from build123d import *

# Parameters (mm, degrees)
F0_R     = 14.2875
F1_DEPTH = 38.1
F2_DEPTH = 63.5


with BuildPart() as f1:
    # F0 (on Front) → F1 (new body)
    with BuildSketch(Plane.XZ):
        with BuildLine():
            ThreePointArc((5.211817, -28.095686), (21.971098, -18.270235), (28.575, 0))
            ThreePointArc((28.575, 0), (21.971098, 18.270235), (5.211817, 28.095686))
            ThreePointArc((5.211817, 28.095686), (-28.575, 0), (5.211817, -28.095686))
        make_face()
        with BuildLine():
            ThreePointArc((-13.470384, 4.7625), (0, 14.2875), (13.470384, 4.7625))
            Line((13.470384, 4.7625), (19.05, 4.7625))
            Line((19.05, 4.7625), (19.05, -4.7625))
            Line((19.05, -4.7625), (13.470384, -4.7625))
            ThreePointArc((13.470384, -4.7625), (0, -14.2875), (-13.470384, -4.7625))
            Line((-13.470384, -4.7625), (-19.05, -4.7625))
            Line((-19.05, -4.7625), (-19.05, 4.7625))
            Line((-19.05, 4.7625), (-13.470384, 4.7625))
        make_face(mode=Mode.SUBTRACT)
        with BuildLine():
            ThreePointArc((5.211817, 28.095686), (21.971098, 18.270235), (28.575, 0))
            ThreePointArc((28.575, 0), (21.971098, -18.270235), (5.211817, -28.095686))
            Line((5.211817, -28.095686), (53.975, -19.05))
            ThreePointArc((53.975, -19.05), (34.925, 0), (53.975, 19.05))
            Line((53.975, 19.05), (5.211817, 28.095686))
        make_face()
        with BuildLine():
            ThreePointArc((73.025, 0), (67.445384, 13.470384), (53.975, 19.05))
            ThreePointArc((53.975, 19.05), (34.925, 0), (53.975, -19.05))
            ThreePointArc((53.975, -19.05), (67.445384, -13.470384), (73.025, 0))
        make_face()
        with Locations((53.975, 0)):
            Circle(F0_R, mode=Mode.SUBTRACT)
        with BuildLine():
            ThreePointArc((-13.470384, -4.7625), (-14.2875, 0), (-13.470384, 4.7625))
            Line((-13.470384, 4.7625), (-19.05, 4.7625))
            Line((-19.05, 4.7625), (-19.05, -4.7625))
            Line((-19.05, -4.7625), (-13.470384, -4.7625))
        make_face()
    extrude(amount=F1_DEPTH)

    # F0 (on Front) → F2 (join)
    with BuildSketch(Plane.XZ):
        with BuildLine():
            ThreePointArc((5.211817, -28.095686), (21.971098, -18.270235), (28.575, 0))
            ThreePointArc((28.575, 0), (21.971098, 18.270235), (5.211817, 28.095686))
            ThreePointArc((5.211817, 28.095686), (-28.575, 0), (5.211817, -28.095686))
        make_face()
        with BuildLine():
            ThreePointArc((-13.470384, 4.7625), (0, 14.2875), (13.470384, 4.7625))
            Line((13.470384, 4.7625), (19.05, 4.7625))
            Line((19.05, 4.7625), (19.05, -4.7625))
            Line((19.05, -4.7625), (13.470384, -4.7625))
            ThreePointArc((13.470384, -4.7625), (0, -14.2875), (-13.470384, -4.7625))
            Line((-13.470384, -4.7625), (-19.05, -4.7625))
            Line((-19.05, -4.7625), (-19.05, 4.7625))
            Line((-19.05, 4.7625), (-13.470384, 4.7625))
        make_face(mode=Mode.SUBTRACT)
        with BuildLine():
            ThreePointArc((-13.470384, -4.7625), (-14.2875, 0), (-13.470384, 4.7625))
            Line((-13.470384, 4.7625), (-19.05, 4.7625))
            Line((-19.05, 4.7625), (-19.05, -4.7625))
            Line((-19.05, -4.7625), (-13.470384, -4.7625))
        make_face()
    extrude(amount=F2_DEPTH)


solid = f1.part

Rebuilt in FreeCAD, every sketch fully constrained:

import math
import FreeCAD as App
import Part
import Sketcher
from FreeCAD import Vector
Q = App.Units.Quantity

doc = App.newDocument("Part")
body = doc.addObject("PartDesign::Body", "Body")

# Sketch on XZ plane
sketch1 = body.newObject("Sketcher::SketchObject", "Sketch")
sketch1.AttachmentSupport = (doc.getObject("XZ_Plane"), [""])
sketch1.MapMode = "FlatFace"
sketch1.addGeometry(Part.ArcOfCircle(Part.Circle(Vector(0, 0, 0), Vector(0, 0, 1), 29), math.radians(79), math.radians(281)), False)
sketch1.addGeometry(Part.LineSegment(Vector(5, -28, 0), Vector(54, -19, 0)), False)
sketch1.addGeometry(Part.ArcOfCircle(Part.Circle(Vector(54, 0, 0), Vector(0, 0, 1), 19), math.radians(-90), math.radians(0)), False)
sketch1.addGeometry(Part.ArcOfCircle(Part.Circle(Vector(54, 0, 0), Vector(0, 0, 1), 19), math.radians(0), math.radians(90)), False)
sketch1.addGeometry(Part.LineSegment(Vector(54, 19, 0), Vector(5, 28, 0)), False)
sketch1.addGeometry(Part.ArcOfCircle(Part.Circle(Vector(0, 0, 0), Vector(0, 0, 1), 14), math.radians(19), math.radians(161)), False)
sketch1.addGeometry(Part.LineSegment(Vector(13, 5, 0), Vector(19, 5, 0)), False)
sketch1.addGeometry(Part.LineSegment(Vector(19, 5, 0), Vector(19, -5, 0)), False)
sketch1.addGeometry(Part.LineSegment(Vector(19, -5, 0), Vector(13, -5, 0)), False)
sketch1.addGeometry(Part.ArcOfCircle(Part.Circle(Vector(0, 0, 0), Vector(0, 0, 1), 14), math.radians(-161), math.radians(-19)), False)
sketch1.addGeometry(Part.ArcOfCircle(Part.Circle(Vector(0, 0, 0), Vector(0, 0, 1), 14), math.radians(161), math.radians(199)), False)
sketch1.addGeometry(Part.Circle(Vector(54, 0, 0), Vector(0, 0, 1), 14), False)
sketch1.addConstraint(Sketcher.Constraint("Tangent", 0, 2, 1, 1))
sketch1.addConstraint(Sketcher.Constraint("Coincident", 1, 2, 2, 1))
sketch1.addConstraint(Sketcher.Constraint("Tangent", 2, 2, 3, 1))
sketch1.addConstraint(Sketcher.Constraint("Coincident", 3, 2, 4, 1))
sketch1.addConstraint(Sketcher.Constraint("Tangent", 4, 2, 0, 1))
sketch1.addConstraint(Sketcher.Constraint("Coincident", 5, 1, 6, 1))
sketch1.addConstraint(Sketcher.Constraint("Coincident", 6, 2, 7, 1))
sketch1.addConstraint(Sketcher.Constraint("Coincident", 7, 2, 8, 1))
sketch1.addConstraint(Sketcher.Constraint("Coincident", 8, 2, 9, 2))
sketch1.addConstraint(Sketcher.Constraint("Tangent", 9, 1, 10, 2))
sketch1.addConstraint(Sketcher.Constraint("Tangent", 10, 1, 5, 2))
sketch1.addConstraint(Sketcher.Constraint("Horizontal", 6))
sketch1.addConstraint(Sketcher.Constraint("Vertical", 7))
sketch1.addConstraint(Sketcher.Constraint("Horizontal", 8))
sketch1.addConstraint(Sketcher.Constraint("Coincident", 0, 3, -1, 1))
sketch1.addConstraint(Sketcher.Constraint("Coincident", 5, 3, -1, 1))
sketch1.addConstraint(Sketcher.Constraint("Coincident", 9, 3, -1, 1))
sketch1.addConstraint(Sketcher.Constraint("Coincident", 11, 3, 2, 3))
sketch1.addConstraint(Sketcher.Constraint("Equal", 2, 3))
sketch1.addConstraint(Sketcher.Constraint("Equal", 9, 11))
sketch1.addConstraint(Sketcher.Constraint("Symmetric", 1, 2, 3, 2, -1))
sketch1.addConstraint(Sketcher.Constraint("PointOnObject", 2, 2, -1))
sketch1.addConstraint(Sketcher.Constraint("Horizontal", 8, 2, 9, 1))
sketch1.addConstraint(Sketcher.Constraint("Horizontal", 6, 2, 10, 1))
sketch1.addConstraint(Sketcher.Constraint("Vertical", 11, 3, 1, 2))
sketch1.addConstraint(Sketcher.Constraint("Vertical", 5, 1, 8, 2))
sketch1.addConstraint(Sketcher.Constraint("Radius", 2, Q("0.75 in")))
sketch1.addConstraint(Sketcher.Constraint("Diameter", 11, Q("1.125 in")))
sketch1.addConstraint(Sketcher.Constraint("Radius", 0, Q("1.125 in")))
sketch1.addConstraint(Sketcher.Constraint("DistanceY", 7, 2, 7, 1, Q("0.375 in")))
sketch1.addConstraint(Sketcher.Constraint("DistanceX", -1, 1, 6, 2, Q("0.75 in")))
sketch1.addConstraint(Sketcher.Constraint("DistanceX", -1, 1, 2, 3, Q("2.125 in")))
pad1 = body.newObject("PartDesign::Pad", "Pad")
pad1.Profile = sketch1
pad1.Length = Q("1.5 in")

# Sketch on XZ plane
sketch2 = body.newObject("Sketcher::SketchObject", "Sketch001")
sketch2.AttachmentSupport = (doc.getObject("XZ_Plane"), [""])
sketch2.MapMode = "FlatFace"
sketch2.addGeometry(Part.ArcOfCircle(Part.Circle(Vector(0, 0, 0), Vector(0, 0, 1), 29), math.radians(-79), math.radians(0)), False)
sketch2.addGeometry(Part.ArcOfCircle(Part.Circle(Vector(0, 0, 0), Vector(0, 0, 1), 29), math.radians(0), math.radians(79)), False)
sketch2.addGeometry(Part.ArcOfCircle(Part.Circle(Vector(0, 0, 0), Vector(0, 0, 1), 29), math.radians(79), math.radians(281)), False)
sketch2.addGeometry(Part.ArcOfCircle(Part.Circle(Vector(0, 0, 0), Vector(0, 0, 1), 14), math.radians(-161), math.radians(-19)), False)
sketch2.addGeometry(Part.ArcOfCircle(Part.Circle(Vector(0, 0, 0), Vector(0, 0, 1), 14), math.radians(161), math.radians(199)), False)
sketch2.addGeometry(Part.ArcOfCircle(Part.Circle(Vector(0, 0, 0), Vector(0, 0, 1), 14), math.radians(19), math.radians(161)), False)
sketch2.addGeometry(Part.LineSegment(Vector(13, 5, 0), Vector(19, 5, 0)), False)
sketch2.addGeometry(Part.LineSegment(Vector(19, 5, 0), Vector(19, -5, 0)), False)
sketch2.addGeometry(Part.LineSegment(Vector(19, -5, 0), Vector(13, -5, 0)), False)
sketch2.addConstraint(Sketcher.Constraint("Tangent", 0, 2, 1, 1))
sketch2.addConstraint(Sketcher.Constraint("Tangent", 1, 2, 2, 1))
sketch2.addConstraint(Sketcher.Constraint("Tangent", 2, 2, 0, 1))
sketch2.addConstraint(Sketcher.Constraint("Tangent", 3, 1, 4, 2))
sketch2.addConstraint(Sketcher.Constraint("Tangent", 4, 1, 5, 2))
sketch2.addConstraint(Sketcher.Constraint("Coincident", 5, 1, 6, 1))
sketch2.addConstraint(Sketcher.Constraint("Coincident", 6, 2, 7, 1))
sketch2.addConstraint(Sketcher.Constraint("Coincident", 7, 2, 8, 1))
sketch2.addConstraint(Sketcher.Constraint("Coincident", 8, 2, 3, 2))
sketch2.addConstraint(Sketcher.Constraint("Horizontal", 6))
sketch2.addConstraint(Sketcher.Constraint("Vertical", 7))
sketch2.addConstraint(Sketcher.Constraint("Horizontal", 8))
sketch2.addConstraint(Sketcher.Constraint("Coincident", 0, 3, -1, 1))
sketch2.addConstraint(Sketcher.Constraint("Coincident", 3, 3, -1, 1))
sketch2.addConstraint(Sketcher.Constraint("Coincident", 5, 3, -1, 1))
sketch2.addConstraint(Sketcher.Constraint("PointOnObject", 0, 2, -1))
sketch2.addConstraint(Sketcher.Constraint("Horizontal", 4, 1, 5, 1))
sketch2.addConstraint(Sketcher.Constraint("Horizontal", 3, 1, 7, 2))
sketch2.addConstraint(Sketcher.Constraint("Vertical", 1, 2, 2, 2))
sketch2.addConstraint(Sketcher.Constraint("Vertical", 3, 1, 4, 1))
sketch2.addConstraint(Sketcher.Constraint("Radius", 0, Q("1.125 in")))
sketch2.addConstraint(Sketcher.Constraint("Radius", 3, Q("0.5625 in")))
sketch2.addConstraint(Sketcher.Constraint("DistanceY", 7, 2, 7, 1, Q("0.375 in")))
sketch2.addConstraint(Sketcher.Constraint("DistanceX", -1, 1, 6, 2, Q("0.75 in")))
sketch2.addConstraint(Sketcher.Constraint("DistanceX", -1, 1, 1, 2, Q("5.211817 mm")))
pad2 = body.newObject("PartDesign::Pad", "Pad001")
pad2.Profile = sketch2
pad2.Length = Q("2.5 in")

doc.recompute()
